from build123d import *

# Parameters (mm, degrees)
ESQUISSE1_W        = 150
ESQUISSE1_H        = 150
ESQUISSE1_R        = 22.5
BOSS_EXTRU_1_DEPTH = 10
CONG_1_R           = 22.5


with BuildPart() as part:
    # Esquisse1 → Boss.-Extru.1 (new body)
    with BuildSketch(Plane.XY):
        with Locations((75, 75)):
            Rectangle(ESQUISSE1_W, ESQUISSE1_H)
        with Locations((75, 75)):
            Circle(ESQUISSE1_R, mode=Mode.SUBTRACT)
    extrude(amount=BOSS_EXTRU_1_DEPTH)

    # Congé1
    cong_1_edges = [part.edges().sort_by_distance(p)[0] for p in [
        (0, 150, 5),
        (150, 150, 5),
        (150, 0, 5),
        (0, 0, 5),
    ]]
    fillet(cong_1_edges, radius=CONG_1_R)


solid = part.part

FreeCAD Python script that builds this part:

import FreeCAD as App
import Part
import Sketcher


def edges_at(feature, points):
    """Names of the edges that pass closest to the given points."""
    edges = feature.Shape.Edges
    near = lambda p: min(range(len(edges)), key=lambda i: edges[i].distToShape(Part.Vertex(*p))[0])
    return sorted({f"Edge{near(p) + 1}" for p in points})


def add_polygon(sketch, points):
    """Adds a closed chain of lines whose ends are joined by coincident constraints."""
    first, n = sketch.GeometryCount, len(points)
    for a, b in zip(points, points[1:] + points[:1]):
        sketch.addGeometry(Part.LineSegment(App.Vector(*a, 0), App.Vector(*b, 0)), False)
    for i in range(n):
        sketch.addConstraint(Sketcher.Constraint("Coincident", first + i, 2, first + (i + 1) % n, 1))

doc = App.newDocument("Part")
body = doc.addObject("PartDesign::Body", "Body")

# Sketch on XY plane
sketch1 = body.newObject("Sketcher::SketchObject", "Sketch")
sketch1.AttachmentSupport = (doc.getObject("XY_Plane"), [""])
sketch1.MapMode = "FlatFace"
add_polygon(sketch1, [(0, 150), (0, 0), (150, 0), (150, 150)])  # lines 0-3
sketch1.addGeometry(Part.Circle(App.Vector(75, 75, 0), App.Vector(0, 0, 1), 22), False)  # 4
sketch1.addConstraint([
    Sketcher.Constraint("Vertical", 0),
    Sketcher.Constraint("Horizontal", 1),
    Sketcher.Constraint("Vertical", 2),
    Sketcher.Constraint("Horizontal", 3),
    Sketcher.Constraint("Coincident", 0, 2, -1, 1),
    Sketcher.Constraint("Equal", 3, 0),
    Sketcher.Constraint("Diameter", 4, 45.0),
    Sketcher.Constraint("DistanceX", 1, 1, 1, 2, 150.0),
    Sketcher.Constraint("DistanceX", -1, 1, 4, 3, 75.0),
    Sketcher.Constraint("DistanceY", -1, 1, 4, 3, 75.0),
])
pad1 = body.newObject("PartDesign::Pad", "Pad")
pad1.Profile = sketch1
pad1.Length = 10
doc.recompute()

fillet = body.newObject("PartDesign::Fillet", "Fillet")
fillet.Base = (pad1, edges_at(pad1, [
    (0, 150, 5),
    (150, 150, 5),
    (150, 0, 5),
    (0, 0, 5),
]))
fillet.Radius = 22.5

doc.recompute()
